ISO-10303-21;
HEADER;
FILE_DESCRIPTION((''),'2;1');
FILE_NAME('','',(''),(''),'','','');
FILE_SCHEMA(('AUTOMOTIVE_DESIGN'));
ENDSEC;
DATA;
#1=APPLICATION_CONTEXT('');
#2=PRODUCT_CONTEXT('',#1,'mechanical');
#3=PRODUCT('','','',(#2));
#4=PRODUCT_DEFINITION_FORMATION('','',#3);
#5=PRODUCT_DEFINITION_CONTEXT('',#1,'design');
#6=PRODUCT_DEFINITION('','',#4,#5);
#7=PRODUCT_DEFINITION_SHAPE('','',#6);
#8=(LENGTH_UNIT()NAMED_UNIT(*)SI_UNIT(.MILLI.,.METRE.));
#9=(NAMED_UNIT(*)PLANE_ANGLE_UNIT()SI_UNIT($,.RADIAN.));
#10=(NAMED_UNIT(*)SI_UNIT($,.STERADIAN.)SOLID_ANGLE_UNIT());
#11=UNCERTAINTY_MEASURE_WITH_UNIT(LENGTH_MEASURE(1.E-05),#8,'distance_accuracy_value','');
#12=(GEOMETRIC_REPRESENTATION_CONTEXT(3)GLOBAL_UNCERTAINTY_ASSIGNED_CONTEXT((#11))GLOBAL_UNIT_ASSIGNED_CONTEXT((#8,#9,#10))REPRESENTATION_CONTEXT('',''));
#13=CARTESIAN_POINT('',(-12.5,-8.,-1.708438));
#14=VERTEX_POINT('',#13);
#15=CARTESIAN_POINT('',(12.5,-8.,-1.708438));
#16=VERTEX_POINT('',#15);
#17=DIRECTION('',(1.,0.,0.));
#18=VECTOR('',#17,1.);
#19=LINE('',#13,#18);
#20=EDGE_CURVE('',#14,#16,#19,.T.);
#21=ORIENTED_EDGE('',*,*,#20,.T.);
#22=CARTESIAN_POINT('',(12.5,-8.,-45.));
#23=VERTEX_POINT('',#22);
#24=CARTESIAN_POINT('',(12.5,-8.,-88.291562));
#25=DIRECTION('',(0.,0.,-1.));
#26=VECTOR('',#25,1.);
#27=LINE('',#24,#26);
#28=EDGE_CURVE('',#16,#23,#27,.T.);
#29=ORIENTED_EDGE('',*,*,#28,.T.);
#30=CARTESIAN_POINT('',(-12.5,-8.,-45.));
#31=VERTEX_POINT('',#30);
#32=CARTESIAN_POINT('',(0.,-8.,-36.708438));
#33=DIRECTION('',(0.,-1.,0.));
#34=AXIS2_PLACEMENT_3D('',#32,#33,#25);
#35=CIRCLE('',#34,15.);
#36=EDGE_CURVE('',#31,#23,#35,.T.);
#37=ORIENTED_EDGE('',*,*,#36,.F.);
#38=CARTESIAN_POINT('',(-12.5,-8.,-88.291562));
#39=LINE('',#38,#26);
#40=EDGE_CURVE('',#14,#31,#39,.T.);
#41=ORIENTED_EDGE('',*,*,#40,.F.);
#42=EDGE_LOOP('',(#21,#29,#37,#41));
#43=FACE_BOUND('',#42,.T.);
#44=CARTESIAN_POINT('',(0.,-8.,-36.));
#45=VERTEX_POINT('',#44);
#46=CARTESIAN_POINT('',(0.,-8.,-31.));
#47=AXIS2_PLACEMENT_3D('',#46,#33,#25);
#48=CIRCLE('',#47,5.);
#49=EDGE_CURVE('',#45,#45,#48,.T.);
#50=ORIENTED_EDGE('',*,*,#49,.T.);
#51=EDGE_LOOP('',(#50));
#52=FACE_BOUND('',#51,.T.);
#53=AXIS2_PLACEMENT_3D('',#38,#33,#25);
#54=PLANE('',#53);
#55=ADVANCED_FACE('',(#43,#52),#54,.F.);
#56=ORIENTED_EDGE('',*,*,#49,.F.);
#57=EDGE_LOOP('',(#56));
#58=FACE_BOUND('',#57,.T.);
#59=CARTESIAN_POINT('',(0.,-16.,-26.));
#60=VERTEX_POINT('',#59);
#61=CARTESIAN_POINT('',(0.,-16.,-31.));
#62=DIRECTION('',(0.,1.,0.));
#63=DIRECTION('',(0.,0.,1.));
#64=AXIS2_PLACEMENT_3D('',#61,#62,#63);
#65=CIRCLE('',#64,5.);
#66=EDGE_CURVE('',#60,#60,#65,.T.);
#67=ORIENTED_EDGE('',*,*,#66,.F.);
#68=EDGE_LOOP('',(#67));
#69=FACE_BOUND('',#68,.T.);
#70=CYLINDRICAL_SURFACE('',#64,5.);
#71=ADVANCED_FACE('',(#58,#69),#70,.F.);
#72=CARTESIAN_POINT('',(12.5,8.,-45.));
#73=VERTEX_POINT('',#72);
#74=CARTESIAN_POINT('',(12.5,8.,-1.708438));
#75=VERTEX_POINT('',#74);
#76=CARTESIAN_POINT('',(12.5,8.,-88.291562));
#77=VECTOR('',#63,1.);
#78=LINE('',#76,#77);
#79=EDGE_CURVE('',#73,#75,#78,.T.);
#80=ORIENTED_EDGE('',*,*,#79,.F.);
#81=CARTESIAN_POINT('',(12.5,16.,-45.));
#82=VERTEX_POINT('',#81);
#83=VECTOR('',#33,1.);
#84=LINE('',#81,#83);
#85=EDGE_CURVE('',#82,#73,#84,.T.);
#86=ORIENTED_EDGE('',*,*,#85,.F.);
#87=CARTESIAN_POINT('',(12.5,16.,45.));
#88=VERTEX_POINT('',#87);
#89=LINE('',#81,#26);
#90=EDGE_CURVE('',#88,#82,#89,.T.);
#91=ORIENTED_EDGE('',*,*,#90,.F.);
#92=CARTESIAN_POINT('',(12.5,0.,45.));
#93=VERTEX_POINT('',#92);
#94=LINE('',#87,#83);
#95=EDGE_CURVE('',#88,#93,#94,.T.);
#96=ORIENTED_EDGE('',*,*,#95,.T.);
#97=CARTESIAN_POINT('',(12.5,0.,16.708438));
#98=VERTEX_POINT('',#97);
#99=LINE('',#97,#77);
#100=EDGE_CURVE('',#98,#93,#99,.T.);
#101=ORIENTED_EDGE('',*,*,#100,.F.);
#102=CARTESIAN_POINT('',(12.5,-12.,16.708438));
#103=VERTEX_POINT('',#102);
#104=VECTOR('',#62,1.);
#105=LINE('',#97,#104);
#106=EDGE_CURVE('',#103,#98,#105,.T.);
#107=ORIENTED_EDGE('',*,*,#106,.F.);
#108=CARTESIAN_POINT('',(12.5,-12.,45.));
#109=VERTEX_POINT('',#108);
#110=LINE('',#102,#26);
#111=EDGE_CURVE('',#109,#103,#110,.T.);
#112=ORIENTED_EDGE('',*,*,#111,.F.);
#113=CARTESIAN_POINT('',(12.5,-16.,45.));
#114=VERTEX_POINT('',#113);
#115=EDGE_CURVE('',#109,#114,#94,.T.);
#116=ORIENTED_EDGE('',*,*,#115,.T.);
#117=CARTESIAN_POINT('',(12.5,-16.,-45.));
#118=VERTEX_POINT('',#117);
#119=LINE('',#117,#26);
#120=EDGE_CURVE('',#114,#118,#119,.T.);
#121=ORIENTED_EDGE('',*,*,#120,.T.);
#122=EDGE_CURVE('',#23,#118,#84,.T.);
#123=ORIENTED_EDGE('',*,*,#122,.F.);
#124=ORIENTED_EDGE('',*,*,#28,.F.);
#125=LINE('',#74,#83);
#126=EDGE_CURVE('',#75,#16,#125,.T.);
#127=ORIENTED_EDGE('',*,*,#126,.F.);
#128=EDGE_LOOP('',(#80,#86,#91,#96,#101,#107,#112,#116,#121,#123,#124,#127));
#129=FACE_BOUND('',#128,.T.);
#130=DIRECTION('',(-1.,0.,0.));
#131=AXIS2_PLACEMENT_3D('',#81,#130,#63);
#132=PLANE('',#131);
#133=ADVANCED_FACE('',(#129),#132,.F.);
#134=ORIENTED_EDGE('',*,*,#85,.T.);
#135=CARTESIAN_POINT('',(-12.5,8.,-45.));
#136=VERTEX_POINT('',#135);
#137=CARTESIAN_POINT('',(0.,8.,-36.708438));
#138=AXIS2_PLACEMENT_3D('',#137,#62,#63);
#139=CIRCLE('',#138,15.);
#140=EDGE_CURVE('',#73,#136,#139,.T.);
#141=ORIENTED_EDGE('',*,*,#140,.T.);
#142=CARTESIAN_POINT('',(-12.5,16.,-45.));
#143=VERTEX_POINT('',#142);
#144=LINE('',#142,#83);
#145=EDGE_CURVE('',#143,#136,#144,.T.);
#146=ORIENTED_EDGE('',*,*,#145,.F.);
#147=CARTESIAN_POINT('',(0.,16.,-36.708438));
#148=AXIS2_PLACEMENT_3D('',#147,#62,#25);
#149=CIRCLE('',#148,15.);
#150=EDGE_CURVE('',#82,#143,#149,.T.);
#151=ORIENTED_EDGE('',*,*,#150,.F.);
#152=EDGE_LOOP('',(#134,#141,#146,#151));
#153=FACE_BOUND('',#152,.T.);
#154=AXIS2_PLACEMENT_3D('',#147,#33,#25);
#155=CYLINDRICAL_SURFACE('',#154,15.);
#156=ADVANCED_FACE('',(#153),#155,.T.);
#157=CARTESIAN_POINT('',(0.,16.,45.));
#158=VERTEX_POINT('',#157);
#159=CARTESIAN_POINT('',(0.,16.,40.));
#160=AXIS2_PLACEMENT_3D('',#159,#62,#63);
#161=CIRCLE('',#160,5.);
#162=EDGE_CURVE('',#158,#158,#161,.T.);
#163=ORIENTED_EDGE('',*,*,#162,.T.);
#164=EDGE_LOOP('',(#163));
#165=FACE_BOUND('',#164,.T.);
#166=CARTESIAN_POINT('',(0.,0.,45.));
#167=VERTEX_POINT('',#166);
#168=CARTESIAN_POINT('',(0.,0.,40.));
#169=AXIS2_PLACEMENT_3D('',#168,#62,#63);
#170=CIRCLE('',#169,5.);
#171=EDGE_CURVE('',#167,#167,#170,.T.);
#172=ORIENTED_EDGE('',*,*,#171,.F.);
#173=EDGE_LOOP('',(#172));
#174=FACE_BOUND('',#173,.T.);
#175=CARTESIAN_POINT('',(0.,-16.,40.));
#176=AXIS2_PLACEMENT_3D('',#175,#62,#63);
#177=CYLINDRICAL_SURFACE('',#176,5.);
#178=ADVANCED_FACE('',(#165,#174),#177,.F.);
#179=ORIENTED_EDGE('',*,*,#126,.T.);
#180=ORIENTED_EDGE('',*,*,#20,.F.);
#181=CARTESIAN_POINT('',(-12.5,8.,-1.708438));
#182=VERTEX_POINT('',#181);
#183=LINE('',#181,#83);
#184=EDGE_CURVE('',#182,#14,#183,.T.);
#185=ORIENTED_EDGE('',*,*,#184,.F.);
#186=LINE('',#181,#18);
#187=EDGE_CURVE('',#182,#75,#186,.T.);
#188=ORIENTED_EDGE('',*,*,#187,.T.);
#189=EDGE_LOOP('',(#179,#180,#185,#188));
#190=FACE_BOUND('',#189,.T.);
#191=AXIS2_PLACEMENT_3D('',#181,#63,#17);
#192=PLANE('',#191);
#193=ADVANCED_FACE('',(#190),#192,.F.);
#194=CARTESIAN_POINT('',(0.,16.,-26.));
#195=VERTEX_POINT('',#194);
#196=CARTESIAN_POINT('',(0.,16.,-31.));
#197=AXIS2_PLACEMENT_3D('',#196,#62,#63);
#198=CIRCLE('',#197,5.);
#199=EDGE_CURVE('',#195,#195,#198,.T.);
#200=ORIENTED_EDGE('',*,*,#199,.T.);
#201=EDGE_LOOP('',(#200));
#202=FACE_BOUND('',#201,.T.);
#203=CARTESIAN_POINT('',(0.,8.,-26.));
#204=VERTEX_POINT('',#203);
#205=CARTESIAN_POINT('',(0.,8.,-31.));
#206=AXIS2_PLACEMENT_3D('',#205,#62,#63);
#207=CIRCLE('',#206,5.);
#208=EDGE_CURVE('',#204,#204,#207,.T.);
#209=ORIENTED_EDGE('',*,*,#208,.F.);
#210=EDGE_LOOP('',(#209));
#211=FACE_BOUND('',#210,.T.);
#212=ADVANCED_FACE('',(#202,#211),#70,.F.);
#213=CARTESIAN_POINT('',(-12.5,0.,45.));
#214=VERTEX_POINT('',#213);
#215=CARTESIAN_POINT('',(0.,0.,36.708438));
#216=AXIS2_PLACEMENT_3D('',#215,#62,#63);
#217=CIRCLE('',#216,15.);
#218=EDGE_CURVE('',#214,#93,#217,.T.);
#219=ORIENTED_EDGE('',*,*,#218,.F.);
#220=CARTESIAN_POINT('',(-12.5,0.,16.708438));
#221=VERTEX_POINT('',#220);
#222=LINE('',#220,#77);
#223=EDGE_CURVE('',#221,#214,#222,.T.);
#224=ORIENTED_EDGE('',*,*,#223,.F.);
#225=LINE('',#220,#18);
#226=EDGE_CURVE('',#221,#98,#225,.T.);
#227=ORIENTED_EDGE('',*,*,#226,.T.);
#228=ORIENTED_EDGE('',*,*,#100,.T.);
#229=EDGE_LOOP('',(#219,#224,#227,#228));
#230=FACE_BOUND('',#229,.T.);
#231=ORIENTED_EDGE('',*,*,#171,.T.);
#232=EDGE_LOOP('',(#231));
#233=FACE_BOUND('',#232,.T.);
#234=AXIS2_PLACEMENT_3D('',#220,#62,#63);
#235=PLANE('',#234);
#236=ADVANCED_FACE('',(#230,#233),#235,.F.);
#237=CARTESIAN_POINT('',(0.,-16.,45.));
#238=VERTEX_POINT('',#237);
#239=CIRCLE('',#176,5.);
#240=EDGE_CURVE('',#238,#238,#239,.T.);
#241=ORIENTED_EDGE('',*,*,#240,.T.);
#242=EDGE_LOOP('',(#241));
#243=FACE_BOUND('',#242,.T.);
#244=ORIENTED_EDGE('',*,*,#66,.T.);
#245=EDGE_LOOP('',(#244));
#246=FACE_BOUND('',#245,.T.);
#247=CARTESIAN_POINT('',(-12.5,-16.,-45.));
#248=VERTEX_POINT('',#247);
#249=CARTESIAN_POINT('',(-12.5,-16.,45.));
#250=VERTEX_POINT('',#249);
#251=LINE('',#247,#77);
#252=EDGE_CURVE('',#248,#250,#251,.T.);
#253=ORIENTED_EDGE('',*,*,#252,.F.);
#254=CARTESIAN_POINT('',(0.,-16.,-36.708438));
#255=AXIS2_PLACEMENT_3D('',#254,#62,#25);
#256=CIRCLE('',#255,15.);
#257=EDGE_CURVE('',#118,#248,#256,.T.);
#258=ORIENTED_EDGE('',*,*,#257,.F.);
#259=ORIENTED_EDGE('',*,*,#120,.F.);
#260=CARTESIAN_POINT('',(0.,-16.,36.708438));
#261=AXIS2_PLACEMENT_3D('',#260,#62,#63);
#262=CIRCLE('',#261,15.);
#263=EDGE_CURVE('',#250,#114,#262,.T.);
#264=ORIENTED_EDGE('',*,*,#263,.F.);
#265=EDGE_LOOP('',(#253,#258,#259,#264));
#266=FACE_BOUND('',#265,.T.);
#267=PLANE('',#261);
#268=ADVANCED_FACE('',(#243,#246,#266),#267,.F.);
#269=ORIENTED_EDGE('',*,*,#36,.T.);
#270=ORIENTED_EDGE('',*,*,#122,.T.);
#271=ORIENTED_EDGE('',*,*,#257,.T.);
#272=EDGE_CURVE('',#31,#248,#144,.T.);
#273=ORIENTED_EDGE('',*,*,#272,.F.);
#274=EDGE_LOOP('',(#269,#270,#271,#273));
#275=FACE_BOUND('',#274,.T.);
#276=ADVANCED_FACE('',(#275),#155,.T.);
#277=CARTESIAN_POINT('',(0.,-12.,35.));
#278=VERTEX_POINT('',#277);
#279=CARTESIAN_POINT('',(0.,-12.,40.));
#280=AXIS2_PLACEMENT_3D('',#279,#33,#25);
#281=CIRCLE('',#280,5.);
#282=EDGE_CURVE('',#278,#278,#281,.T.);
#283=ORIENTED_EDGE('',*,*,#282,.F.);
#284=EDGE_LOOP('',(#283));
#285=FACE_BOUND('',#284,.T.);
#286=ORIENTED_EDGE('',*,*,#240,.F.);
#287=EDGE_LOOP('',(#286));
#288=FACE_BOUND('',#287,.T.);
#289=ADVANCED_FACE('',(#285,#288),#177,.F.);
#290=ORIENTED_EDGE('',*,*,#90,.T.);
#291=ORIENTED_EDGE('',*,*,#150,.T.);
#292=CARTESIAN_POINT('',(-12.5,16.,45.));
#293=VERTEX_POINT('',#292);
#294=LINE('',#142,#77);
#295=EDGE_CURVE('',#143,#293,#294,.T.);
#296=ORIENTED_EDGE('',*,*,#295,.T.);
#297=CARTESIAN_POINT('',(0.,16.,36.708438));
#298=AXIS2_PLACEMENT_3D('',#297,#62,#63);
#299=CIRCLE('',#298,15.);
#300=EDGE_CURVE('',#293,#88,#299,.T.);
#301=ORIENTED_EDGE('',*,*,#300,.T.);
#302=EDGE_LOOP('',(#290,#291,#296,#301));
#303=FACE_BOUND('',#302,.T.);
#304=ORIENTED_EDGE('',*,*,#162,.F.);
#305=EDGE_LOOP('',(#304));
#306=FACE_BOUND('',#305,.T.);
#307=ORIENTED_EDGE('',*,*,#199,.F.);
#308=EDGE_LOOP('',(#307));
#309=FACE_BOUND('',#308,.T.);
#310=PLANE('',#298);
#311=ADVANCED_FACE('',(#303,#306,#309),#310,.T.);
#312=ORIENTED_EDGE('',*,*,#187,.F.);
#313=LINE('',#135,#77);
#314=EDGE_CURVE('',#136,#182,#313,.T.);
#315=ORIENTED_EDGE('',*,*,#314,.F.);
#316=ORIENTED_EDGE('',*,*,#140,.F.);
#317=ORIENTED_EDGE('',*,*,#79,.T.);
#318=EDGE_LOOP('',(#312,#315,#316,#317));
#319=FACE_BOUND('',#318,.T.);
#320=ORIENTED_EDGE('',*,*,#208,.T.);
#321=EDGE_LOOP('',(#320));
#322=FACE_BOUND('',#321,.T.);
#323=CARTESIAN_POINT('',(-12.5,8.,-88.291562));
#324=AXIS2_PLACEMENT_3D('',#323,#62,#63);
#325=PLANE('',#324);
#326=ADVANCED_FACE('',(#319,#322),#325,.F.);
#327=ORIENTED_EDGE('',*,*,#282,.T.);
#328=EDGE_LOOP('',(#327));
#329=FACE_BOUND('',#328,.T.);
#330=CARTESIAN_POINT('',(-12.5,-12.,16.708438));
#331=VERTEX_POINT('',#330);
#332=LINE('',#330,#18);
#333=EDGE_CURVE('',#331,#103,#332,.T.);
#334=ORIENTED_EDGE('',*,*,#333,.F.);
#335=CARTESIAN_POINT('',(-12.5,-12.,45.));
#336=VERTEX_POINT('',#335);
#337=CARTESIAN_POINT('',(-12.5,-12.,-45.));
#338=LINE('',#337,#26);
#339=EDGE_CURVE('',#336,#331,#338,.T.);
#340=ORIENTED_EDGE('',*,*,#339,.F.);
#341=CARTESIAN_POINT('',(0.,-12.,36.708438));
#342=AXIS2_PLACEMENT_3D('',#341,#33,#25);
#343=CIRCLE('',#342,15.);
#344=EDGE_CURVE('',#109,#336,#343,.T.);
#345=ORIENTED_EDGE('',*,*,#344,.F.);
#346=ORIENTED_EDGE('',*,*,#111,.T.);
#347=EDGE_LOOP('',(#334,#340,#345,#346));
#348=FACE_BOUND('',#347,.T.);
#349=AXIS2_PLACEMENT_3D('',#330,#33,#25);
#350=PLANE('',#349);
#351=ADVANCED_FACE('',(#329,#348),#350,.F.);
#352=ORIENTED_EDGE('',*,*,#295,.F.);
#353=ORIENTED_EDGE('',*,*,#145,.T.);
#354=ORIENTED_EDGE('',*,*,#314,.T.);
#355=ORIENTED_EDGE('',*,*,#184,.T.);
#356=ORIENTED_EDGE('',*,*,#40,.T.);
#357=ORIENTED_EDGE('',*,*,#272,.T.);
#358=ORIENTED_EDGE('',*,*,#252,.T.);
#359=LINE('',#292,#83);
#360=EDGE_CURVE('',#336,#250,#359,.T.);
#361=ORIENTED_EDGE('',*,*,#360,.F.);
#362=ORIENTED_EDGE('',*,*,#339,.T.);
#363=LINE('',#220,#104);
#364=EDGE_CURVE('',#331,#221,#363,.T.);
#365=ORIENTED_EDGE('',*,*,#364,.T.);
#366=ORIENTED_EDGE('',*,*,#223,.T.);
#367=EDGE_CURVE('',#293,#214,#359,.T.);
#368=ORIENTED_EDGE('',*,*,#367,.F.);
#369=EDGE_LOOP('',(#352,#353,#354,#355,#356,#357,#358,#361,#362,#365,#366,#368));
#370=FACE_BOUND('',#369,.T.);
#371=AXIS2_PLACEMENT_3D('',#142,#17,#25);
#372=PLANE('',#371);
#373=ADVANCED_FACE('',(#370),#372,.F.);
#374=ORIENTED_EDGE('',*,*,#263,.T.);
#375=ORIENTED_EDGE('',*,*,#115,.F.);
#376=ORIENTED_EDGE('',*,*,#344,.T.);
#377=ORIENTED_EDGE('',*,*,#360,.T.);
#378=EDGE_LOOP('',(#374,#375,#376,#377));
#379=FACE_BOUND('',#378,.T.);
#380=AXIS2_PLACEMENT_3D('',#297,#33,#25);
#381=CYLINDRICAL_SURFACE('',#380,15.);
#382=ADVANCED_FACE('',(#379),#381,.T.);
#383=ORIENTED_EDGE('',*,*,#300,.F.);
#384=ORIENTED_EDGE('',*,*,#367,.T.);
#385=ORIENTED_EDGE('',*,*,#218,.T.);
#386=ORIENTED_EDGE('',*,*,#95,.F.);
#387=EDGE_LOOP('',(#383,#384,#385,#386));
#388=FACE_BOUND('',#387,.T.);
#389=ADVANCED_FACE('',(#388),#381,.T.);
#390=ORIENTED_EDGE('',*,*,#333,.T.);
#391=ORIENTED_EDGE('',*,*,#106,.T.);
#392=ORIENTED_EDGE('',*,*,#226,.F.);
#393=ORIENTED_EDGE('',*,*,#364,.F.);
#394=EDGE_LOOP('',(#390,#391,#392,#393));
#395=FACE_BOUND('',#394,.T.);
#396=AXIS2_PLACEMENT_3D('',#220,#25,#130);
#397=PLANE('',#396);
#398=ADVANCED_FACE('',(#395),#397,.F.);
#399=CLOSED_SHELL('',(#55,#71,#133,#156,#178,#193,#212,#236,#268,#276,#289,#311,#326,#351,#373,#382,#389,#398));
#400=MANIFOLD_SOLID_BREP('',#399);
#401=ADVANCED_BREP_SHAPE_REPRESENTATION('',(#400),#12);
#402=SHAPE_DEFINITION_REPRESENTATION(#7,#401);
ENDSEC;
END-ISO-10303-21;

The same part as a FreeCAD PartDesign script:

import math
import FreeCAD as App
import Part
import Sketcher
from FreeCAD import Vector


def add_polygon(sketch, points):
    """Adds a closed chain of lines whose ends are joined by coincident constraints."""
    first, n = sketch.GeometryCount, len(points)
    for a, b in zip(points, points[1:] + points[:1]):
        sketch.addGeometry(Part.LineSegment(App.Vector(*a, 0), App.Vector(*b, 0)), False)
    for i in range(n):
        sketch.addConstraint(Sketcher.Constraint("Coincident", first + i, 2, first + (i + 1) % n, 1))

doc = App.newDocument("Part")
body = doc.addObject("PartDesign::Body", "Body")

sketch1 = body.newObject("Sketcher::SketchObject", "Sketch")
sketch1.AttachmentSupport = (doc.getObject("XZ_Plane"), [""])
sketch1.MapMode = "FlatFace"
sketch1.addGeometry(Part.LineSegment(Vector(-12, -45, 0), Vector(-12, 45, 0)), False)
sketch1.addGeometry(Part.ArcOfCircle(Part.Circle(Vector(0, 37, 0), Vector(0, 0, 1), 15), math.radians(34), math.radians(146)), False)
sketch1.addGeometry(Part.LineSegment(Vector(12, 45, 0), Vector(12, -45, 0)), False)
sketch1.addGeometry(Part.ArcOfCircle(Part.Circle(Vector(0, -37, 0), Vector(0, 0, 1), 15), math.radians(-146), math.radians(-34)), False)
sketch1.addConstraint(Sketcher.Constraint("Coincident", 0, 2, 1, 2))
sketch1.addConstraint(Sketcher.Constraint("Coincident", 1, 1, 2, 1))
sketch1.addConstraint(Sketcher.Constraint("Coincident", 2, 2, 3, 2))
sketch1.addConstraint(Sketcher.Constraint("Coincident", 3, 1, 0, 1))
sketch1.addConstraint(Sketcher.Constraint("Vertical", 0))
sketch1.addConstraint(Sketcher.Constraint("Vertical", 2))
sketch1.addConstraint(Sketcher.Constraint("Equal", 1, 3))
sketch1.addConstraint(Sketcher.Constraint("Symmetric", 1, 3, 3, 3, -1, 1))
sketch1.addConstraint(Sketcher.Constraint("Symmetric", 0, 2, 1, 1, -2))
sketch1.addConstraint(Sketcher.Constraint("Radius", 1, 15.0))
sketch1.addConstraint(Sketcher.Constraint("DistanceY", 0, 1, 0, 2, 90.0))
sketch1.addConstraint(Sketcher.Constraint("DistanceX", 0, 2, 1, 1, 25.0))
pad1 = body.newObject("PartDesign::Pad", "Pad")
pad1.Profile = sketch1
pad1.Length = 32
pad1.Midplane = True

sketch2 = body.newObject("Sketcher::SketchObject", "Sketch001")
sketch2.AttachmentSupport = (doc.getObject("YZ_Plane"), [""])
sketch2.MapMode = "FlatFace"
sketch2.AttachmentOffset = App.Placement(Vector(0, 0, 12.5), App.Rotation())
add_polygon(sketch2, [(0, 73), (-12, 73), (-12, 17), (0, 17)])
sketch2.addConstraint(Sketcher.Constraint("Horizontal", 0))
sketch2.addConstraint(Sketcher.Constraint("Vertical", 1))
sketch2.addConstraint(Sketcher.Constraint("Horizontal", 2))
sketch2.addConstraint(Sketcher.Constraint("Vertical", 3))
sketch2.addConstraint(Sketcher.Constraint("PointOnObject", 2, 2, -2))
sketch2.addConstraint(Sketcher.Constraint("DistanceX", 0, 2, 0, 1, 12.0))
sketch2.addConstraint(Sketcher.Constraint("DistanceY", 1, 2, 1, 1, 56.583124))
sketch2.addConstraint(Sketcher.Constraint("DistanceY", -1, 1, 0, 2, 73.291562))
pocket1 = body.newObject("PartDesign::Pocket", "Pocket")
pocket1.Profile = sketch2
pocket1.Type = "ThroughAll"

sketch3 = body.newObject("Sketcher::SketchObject", "Sketch002")
sketch3.AttachmentSupport = (doc.getObject("YZ_Plane"), [""])
sketch3.MapMode = "FlatFace"
sketch3.AttachmentOffset = App.Placement(Vector(0, 0, 12.5), App.Rotation())
add_polygon(sketch3, [(8, -2), (-8, -2), (-8, -88), (8, -88)])
sketch3.addConstraint(Sketcher.Constraint("Horizontal", 0))
sketch3.addConstraint(Sketcher.Constraint("Vertical", 1))
sketch3.addConstraint(Sketcher.Constraint("Horizontal", 2))
sketch3.addConstraint(Sketcher.Constraint("Vertical", 3))
sketch3.addConstraint(Sketcher.Constraint("DistanceX", 0, 2, 0, 1, 16.0))
sketch3.addConstraint(Sketcher.Constraint("DistanceX", 0, 2, -1, 1, 8.0))
sketch3.addConstraint(Sketcher.Constraint("DistanceY", 1, 2, 1, 1, 86.583124))
sketch3.addConstraint(Sketcher.Constraint("DistanceY", 0, 2, -1, 1, 1.708438))
pocket2 = body.newObject("PartDesign::Pocket", "Pocket001")
pocket2.Profile = sketch3
pocket2.Type = "ThroughAll"

sketch4 = body.newObject("Sketcher::SketchObject", "Sketch003")
sketch4.AttachmentSupport = (doc.getObject("XZ_Plane"), [""])
sketch4.MapMode = "FlatFace"
sketch4.AttachmentOffset = App.Placement(Vector(0, 0, -16), App.Rotation())
sketch4.addGeometry(Part.Circle(Vector(0, 40, 0), Vector(0, 0, 1), 5), False)
sketch4.addGeometry(Part.Circle(Vector(0, -31, 0), Vector(0, 0, 1), 5), False)
sketch4.addConstraint(Sketcher.Constraint("Equal", 0, 1))
sketch4.addConstraint(Sketcher.Constraint("PointOnObject", 0, 3, -2))
sketch4.addConstraint(Sketcher.Constraint("PointOnObject", 1, 3, -2))
sketch4.addConstraint(Sketcher.Constraint("Diameter", 0, 10.0))
sketch4.addConstraint(Sketcher.Constraint("DistanceY", -1, 1, 0, 3, 40.0))
sketch4.addConstraint(Sketcher.Constraint("DistanceY", 1, 3, -1, 1, 31.0))
pocket3 = body.newObject("PartDesign::Pocket", "Pocket002")
pocket3.Profile = sketch4
pocket3.Type = "ThroughAll"
pocket3.Reversed = True

doc.recompute()
